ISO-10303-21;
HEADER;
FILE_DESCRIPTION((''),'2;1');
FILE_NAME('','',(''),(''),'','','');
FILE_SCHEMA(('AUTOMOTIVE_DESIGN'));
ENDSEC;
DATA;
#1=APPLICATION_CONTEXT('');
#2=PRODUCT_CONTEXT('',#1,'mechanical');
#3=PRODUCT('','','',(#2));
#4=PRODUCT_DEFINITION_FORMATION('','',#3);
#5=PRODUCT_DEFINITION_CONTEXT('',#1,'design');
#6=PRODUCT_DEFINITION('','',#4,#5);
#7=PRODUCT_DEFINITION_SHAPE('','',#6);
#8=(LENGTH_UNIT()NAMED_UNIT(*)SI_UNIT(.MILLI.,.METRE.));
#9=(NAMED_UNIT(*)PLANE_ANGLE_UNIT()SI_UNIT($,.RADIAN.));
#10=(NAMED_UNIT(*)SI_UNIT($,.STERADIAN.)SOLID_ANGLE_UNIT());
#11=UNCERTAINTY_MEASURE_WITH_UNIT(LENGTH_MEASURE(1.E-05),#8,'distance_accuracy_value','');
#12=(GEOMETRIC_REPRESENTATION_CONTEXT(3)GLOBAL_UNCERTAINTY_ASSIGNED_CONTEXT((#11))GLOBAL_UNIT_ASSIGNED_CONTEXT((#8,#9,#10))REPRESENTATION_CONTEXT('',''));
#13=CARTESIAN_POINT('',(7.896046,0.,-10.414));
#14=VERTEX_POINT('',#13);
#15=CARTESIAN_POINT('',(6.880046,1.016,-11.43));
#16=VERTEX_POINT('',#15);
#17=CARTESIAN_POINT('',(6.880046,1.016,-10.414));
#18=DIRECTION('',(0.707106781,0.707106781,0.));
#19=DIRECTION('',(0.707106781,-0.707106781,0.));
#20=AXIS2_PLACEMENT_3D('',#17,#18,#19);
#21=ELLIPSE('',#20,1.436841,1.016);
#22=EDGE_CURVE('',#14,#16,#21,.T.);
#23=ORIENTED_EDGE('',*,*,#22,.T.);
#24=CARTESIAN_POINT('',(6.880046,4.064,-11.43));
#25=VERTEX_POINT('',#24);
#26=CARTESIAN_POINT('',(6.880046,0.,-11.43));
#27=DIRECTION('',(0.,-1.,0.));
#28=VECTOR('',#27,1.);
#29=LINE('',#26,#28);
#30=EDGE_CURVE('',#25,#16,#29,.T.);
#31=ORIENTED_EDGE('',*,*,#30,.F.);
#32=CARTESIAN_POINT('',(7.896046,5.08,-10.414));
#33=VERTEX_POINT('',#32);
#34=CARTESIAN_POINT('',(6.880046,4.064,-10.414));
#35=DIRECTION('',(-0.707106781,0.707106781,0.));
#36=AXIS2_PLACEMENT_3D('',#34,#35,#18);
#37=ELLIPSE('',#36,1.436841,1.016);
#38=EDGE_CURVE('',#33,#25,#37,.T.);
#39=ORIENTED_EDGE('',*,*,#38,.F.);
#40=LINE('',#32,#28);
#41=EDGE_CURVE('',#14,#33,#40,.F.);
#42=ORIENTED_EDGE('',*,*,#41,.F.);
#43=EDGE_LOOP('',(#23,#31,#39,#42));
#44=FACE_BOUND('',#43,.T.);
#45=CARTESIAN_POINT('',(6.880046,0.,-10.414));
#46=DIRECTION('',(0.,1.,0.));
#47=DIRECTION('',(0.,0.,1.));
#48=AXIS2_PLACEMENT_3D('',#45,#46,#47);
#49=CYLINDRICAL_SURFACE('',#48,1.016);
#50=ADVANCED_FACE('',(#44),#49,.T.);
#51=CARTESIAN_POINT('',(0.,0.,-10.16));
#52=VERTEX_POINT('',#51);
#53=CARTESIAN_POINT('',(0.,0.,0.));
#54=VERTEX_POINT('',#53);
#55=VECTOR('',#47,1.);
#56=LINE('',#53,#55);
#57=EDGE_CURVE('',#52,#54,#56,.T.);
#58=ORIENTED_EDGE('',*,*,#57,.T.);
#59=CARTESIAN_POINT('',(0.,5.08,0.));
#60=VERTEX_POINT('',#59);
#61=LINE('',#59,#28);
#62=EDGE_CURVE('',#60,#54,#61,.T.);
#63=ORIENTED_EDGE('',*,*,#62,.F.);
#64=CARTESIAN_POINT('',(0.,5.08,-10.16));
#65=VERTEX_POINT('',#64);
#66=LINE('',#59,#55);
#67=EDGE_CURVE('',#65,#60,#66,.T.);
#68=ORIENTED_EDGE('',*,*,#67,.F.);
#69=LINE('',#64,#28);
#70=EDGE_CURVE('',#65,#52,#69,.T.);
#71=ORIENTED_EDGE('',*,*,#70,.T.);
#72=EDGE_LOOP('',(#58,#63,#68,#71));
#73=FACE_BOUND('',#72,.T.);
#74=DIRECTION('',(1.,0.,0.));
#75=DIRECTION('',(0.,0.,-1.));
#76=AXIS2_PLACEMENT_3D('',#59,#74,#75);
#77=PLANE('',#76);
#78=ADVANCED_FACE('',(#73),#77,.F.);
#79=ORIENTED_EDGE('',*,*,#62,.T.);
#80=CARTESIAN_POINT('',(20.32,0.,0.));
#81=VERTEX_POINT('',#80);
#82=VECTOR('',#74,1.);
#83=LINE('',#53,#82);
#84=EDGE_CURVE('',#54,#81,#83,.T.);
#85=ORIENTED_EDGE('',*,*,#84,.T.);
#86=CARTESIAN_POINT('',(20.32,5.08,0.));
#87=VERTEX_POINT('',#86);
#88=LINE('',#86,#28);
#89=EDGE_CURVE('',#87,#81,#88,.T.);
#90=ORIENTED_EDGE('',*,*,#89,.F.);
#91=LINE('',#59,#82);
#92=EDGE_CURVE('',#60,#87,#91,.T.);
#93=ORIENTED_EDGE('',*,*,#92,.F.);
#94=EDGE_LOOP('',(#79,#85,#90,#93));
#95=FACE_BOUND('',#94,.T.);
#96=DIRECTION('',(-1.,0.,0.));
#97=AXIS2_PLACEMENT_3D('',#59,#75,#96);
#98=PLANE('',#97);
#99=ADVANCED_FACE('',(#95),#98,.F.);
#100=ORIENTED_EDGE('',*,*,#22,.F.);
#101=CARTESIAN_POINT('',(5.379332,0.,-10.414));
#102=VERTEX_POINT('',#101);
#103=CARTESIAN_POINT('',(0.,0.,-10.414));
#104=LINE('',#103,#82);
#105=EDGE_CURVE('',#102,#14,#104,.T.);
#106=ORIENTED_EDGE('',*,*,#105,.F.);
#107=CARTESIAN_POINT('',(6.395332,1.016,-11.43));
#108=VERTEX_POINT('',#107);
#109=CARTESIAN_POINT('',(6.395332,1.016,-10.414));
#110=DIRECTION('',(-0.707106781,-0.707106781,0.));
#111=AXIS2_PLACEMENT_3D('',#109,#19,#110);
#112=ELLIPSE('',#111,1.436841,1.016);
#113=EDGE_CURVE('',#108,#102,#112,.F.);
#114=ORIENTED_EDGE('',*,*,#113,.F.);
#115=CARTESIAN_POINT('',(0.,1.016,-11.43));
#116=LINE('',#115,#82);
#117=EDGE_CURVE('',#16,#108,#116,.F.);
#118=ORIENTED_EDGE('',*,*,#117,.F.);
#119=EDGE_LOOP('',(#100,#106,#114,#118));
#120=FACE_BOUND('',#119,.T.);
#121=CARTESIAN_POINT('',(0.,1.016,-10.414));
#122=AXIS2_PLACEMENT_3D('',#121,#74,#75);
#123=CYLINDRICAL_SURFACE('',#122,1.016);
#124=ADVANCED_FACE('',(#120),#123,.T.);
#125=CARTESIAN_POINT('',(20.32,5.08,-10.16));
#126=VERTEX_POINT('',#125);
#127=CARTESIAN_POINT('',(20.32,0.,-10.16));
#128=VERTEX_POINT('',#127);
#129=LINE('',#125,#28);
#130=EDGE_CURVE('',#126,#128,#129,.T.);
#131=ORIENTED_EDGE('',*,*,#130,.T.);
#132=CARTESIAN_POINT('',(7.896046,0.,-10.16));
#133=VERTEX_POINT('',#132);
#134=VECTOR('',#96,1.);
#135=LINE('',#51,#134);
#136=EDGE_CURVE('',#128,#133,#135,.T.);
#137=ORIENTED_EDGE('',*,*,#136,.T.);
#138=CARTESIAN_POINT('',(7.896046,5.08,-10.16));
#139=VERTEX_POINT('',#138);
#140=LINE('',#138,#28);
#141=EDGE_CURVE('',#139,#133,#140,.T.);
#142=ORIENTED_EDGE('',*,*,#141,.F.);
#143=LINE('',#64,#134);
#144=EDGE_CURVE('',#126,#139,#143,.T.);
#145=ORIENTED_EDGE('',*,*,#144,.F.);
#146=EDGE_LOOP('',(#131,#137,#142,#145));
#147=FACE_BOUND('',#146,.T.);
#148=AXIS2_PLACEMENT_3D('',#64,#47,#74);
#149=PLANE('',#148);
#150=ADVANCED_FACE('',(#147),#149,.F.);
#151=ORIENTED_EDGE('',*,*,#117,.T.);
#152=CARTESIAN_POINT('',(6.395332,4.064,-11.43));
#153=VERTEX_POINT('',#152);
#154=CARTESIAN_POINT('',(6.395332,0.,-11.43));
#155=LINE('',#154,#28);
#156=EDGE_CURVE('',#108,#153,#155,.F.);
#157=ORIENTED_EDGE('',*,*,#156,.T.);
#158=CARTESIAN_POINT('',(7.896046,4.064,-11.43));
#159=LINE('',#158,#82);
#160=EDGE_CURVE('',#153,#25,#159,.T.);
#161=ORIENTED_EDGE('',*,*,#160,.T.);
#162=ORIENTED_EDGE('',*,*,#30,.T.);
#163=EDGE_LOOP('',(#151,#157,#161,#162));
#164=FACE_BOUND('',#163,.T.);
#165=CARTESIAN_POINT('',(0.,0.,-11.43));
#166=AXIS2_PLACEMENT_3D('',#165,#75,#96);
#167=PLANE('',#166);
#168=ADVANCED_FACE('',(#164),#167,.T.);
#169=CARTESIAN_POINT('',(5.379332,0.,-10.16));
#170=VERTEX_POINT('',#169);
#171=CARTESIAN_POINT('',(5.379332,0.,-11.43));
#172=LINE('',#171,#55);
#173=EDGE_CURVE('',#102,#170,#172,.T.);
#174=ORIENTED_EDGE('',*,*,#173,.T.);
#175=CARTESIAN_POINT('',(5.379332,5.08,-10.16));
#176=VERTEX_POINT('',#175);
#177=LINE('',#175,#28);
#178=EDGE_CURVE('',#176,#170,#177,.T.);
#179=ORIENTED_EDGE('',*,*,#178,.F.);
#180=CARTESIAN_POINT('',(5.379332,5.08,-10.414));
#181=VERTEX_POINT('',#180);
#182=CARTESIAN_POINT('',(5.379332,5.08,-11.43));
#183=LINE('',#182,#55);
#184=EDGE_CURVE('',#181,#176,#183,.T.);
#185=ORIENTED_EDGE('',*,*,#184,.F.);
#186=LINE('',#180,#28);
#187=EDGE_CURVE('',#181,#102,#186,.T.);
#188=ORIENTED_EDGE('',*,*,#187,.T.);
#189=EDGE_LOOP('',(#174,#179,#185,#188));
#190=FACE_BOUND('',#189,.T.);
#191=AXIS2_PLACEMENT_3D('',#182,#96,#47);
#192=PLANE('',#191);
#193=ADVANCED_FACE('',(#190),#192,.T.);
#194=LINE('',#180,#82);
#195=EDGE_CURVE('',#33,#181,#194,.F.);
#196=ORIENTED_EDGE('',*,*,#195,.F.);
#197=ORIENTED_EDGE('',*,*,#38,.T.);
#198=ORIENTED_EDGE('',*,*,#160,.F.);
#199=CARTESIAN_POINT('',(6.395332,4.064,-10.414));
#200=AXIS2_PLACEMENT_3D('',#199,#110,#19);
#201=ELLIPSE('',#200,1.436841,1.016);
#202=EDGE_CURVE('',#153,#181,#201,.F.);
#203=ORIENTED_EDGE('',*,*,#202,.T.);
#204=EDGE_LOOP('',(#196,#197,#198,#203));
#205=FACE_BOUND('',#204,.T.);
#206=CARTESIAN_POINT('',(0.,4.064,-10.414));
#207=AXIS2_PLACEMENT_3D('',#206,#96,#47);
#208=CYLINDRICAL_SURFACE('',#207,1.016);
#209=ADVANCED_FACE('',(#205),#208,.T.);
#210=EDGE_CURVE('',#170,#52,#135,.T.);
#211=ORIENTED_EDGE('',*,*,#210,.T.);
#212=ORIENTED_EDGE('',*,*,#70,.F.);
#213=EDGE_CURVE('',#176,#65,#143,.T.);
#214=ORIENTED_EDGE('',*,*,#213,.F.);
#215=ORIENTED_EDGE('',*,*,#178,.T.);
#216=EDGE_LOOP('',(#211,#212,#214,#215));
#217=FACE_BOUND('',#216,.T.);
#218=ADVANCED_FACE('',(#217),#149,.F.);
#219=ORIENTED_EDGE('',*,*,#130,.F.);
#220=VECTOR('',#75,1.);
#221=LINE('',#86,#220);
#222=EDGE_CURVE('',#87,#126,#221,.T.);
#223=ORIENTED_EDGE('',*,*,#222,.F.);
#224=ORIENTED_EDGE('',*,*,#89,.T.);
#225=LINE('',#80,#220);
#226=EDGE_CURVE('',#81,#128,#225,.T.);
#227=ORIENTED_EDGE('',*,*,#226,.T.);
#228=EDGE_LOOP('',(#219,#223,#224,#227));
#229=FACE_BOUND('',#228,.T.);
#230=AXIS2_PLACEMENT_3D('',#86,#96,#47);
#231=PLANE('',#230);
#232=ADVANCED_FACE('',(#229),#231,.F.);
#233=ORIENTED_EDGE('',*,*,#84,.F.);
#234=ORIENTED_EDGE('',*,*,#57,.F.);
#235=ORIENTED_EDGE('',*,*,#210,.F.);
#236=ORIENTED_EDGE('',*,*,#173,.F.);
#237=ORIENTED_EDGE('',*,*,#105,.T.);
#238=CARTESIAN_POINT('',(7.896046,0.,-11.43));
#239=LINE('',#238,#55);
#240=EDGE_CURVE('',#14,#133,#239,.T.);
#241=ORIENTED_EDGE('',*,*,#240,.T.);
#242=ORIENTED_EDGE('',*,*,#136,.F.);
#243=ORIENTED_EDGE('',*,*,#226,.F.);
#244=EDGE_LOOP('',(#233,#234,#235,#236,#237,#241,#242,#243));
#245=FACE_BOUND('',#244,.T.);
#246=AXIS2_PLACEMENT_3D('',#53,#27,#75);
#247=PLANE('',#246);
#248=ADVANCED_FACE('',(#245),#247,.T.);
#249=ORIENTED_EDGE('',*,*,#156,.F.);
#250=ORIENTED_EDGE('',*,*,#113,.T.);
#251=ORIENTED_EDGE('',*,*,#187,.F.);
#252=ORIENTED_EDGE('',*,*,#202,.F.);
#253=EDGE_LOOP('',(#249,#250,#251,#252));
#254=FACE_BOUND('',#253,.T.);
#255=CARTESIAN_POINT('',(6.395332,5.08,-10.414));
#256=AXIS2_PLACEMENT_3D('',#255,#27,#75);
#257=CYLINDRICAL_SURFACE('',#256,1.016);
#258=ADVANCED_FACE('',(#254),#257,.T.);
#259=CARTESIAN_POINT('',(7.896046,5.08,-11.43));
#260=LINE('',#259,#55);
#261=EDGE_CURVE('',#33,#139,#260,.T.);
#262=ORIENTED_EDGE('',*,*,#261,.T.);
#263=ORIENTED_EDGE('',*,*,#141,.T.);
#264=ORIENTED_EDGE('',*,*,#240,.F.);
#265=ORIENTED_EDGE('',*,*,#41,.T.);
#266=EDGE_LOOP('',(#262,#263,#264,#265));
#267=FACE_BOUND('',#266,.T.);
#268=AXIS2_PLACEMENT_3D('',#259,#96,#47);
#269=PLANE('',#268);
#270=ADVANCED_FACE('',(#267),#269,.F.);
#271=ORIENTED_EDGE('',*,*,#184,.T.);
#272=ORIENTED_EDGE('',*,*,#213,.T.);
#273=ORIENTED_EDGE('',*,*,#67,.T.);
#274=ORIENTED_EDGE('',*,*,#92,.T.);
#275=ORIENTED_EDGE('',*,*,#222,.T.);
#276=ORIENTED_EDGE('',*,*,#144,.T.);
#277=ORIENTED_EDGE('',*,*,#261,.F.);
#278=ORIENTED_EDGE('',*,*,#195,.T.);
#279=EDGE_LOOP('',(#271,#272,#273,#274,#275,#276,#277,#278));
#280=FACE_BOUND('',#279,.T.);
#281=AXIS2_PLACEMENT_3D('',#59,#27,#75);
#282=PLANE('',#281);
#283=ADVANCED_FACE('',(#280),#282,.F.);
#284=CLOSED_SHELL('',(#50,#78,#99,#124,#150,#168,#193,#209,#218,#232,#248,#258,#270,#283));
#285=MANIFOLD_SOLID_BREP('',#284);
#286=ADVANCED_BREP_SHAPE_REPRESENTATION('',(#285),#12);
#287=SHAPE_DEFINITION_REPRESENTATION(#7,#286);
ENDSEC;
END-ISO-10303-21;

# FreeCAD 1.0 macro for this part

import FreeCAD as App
import Part
import Sketcher

V = App.Vector
Q = App.Units.Quantity


def edges_at(feature, points):
    """Names of the edges that pass closest to the given points."""
    edges = feature.Shape.Edges
    near = lambda p: min(range(len(edges)), key=lambda i: edges[i].distToShape(Part.Vertex(*p))[0])
    return sorted({f"Edge{near(p) + 1}" for p in points})


def add_polygon(sketch, points):
    """Adds a closed chain of lines whose ends are joined by coincident constraints."""
    first, n = sketch.GeometryCount, len(points)
    for a, b in zip(points, points[1:] + points[:1]):
        sketch.addGeometry(Part.LineSegment(App.Vector(*a, 0), App.Vector(*b, 0)), False)
    for i in range(n):
        sketch.addConstraint(Sketcher.Constraint("Coincident", first + i, 2, first + (i + 1) % n, 1))

doc = App.newDocument("Part")
body = doc.addObject("PartDesign::Body", "Body")

# Sketch on XZ plane
sketch1 = body.newObject("Sketcher::SketchObject", "Sketch")
sketch1.AttachmentSupport = (doc.getObject("XZ_Plane"), [""])
sketch1.MapMode = "FlatFace"
add_polygon(sketch1, [(0, -10.16), (0, 0), (20.32, 0), (20.32, -10.16)])  # lines 0-3
sketch1.addConstraint(Sketcher.Constraint("Vertical", 0))
sketch1.addConstraint(Sketcher.Constraint("Horizontal", 1))
sketch1.addConstraint(Sketcher.Constraint("Vertical", 2))
sketch1.addConstraint(Sketcher.Constraint("Horizontal", 3))
sketch1.addConstraint(Sketcher.Constraint("Coincident", 0, 2, -1, 1))
sketch1.addConstraint(Sketcher.Constraint("DistanceX", 1, 1, 1, 2, Q("0.8 in")))
sketch1.addConstraint(Sketcher.Constraint("DistanceY", 0, 1, 0, 2, Q("0.4 in")))
pad1 = body.newObject("PartDesign::Pad", "Pad")
pad1.Profile = sketch1
pad1.Length = Q("0.2 in")
pad1.Reversed = True

# Sketch on XY plane
sketch2 = body.newObject("Sketcher::SketchObject", "Sketch001")
sketch2.AttachmentSupport = (doc.getObject("XY_Plane"), [""])
sketch2.MapMode = "FlatFace"
sketch2.AttachmentOffset = App.Placement(V(0, 0, -0.4 * 25.4), App.Rotation())
add_polygon(sketch2, [(7.896046, 5.08), (7.896046, 0), (5.379332, 0), (5.379332, 5.08)])  # lines 0-3
sketch2.addConstraint(Sketcher.Constraint("Vertical", 0))
sketch2.addConstraint(Sketcher.Constraint("Horizontal", 1))
sketch2.addConstraint(Sketcher.Constraint("Vertical", 2))
sketch2.addConstraint(Sketcher.Constraint("Horizontal", 3))
sketch2.addConstraint(Sketcher.Constraint("PointOnObject", 0, 2, -1))
sketch2.addConstraint(Sketcher.Constraint("DistanceY", 0, 2, 0, 1, Q("0.2 in")))
sketch2.addConstraint(Sketcher.Constraint("DistanceX", 1, 2, 1, 1, Q("2.516713 mm")))
sketch2.addConstraint(Sketcher.Constraint("DistanceX", -1, 1, 0, 2, Q("7.896046 mm")))
pad2 = body.newObject("PartDesign::Pad", "Pad001")
pad2.Profile = sketch2
pad2.Length = Q("0.05 in")
pad2.Reversed = True
doc.recompute()

fillet = body.newObject("PartDesign::Fillet", "Fillet")
fillet.Base = (pad2, edges_at(pad2, [
    (6.638, 0, -11.43),
    (5.379, 2.54, -11.43),
    (6.638, 5.08, -11.43),
    (7.896, 2.54, -11.43),
]))
fillet.Radius = Q("0.04 in")

doc.recompute()
